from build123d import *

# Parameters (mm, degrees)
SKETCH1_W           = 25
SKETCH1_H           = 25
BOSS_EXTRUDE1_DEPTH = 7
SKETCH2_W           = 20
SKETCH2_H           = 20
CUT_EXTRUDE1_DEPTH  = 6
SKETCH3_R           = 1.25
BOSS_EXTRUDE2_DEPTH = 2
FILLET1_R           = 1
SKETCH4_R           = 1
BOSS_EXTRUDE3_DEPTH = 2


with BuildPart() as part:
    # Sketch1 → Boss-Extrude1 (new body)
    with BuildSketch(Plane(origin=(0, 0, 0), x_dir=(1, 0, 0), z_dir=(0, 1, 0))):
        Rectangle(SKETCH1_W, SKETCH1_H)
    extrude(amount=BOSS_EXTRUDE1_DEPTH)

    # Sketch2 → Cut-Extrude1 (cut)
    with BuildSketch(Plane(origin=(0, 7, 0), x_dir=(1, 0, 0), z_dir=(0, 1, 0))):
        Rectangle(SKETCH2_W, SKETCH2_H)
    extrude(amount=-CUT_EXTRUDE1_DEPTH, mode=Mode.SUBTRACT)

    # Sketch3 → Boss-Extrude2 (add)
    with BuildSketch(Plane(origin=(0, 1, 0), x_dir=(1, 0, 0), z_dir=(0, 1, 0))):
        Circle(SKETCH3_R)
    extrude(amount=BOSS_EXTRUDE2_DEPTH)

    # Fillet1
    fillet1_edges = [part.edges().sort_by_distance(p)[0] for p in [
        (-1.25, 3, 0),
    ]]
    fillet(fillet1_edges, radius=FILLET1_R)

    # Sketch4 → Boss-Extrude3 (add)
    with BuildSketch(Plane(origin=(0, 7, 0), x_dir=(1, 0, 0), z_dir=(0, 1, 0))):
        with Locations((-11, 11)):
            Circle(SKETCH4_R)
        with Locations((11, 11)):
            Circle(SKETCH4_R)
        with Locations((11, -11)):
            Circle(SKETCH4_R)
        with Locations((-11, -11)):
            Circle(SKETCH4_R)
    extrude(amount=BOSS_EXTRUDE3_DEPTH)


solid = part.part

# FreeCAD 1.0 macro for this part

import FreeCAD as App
import Part
import Sketcher

V = App.Vector
Q = App.Units.Quantity


def edges_at(feature, points):
    """Names of the edges that pass closest to the given points."""
    edges = feature.Shape.Edges
    near = lambda p: min(range(len(edges)), key=lambda i: edges[i].distToShape(Part.Vertex(*p))[0])
    return sorted({f"Edge{near(p) + 1}" for p in points})


def add_polygon(sketch, points):
    """Adds a closed chain of lines whose ends are joined by coincident constraints."""
    first, n = sketch.GeometryCount, len(points)
    for a, b in zip(points, points[1:] + points[:1]):
        sketch.addGeometry(Part.LineSegment(App.Vector(*a, 0), App.Vector(*b, 0)), False)
    for i in range(n):
        sketch.addConstraint(Sketcher.Constraint("Coincident", first + i, 2, first + (i + 1) % n, 1))

doc = App.newDocument("Part")
body = doc.addObject("PartDesign::Body", "Body")

sketch1 = doc.addObject("Sketcher::SketchObject", "Sketch")
body.addObject(sketch1)
sketch1.AttachmentSupport = (doc.XZ_Plane, [""])
sketch1.MapMode = "FlatFace"
add_polygon(sketch1, [(-12, -12), (-12, 12), (12, 12), (12, -12)])
sketch1.addConstraint([
    Sketcher.Constraint("Vertical", 0),
    Sketcher.Constraint("Horizontal", 1),
    Sketcher.Constraint("Vertical", 2),
    Sketcher.Constraint("Horizontal", 3),
    Sketcher.Constraint("Symmetric", 0, 2, 2, 2, -1, 1),
    Sketcher.Constraint("Equal", 3, 0),
    Sketcher.Constraint("DistanceX", 1, 1, 1, 2, Q("25 mm")),
])
pad1 = doc.addObject("PartDesign::Pad", "Pad")
body.addObject(pad1)
pad1.Profile = sketch1
pad1.Length = 7
pad1.Reversed = True

sketch2 = doc.addObject("Sketcher::SketchObject", "Sketch001")
body.addObject(sketch2)
sketch2.AttachmentSupport = (doc.XZ_Plane, [""])
sketch2.MapMode = "FlatFace"
sketch2.AttachmentOffset = App.Placement(V(0, 0, -7), App.Rotation())
add_polygon(sketch2, [(-10, -10), (-10, 10), (10, 10), (10, -10)])
sketch2.addConstraint([
    Sketcher.Constraint("Vertical", 0),
    Sketcher.Constraint("Horizontal", 1),
    Sketcher.Constraint("Vertical", 2),
    Sketcher.Constraint("Horizontal", 3),
    Sketcher.Constraint("Symmetric", 0, 2, 2, 2, -1, 1),
    Sketcher.Constraint("Equal", 3, 0),
    Sketcher.Constraint("DistanceX", 1, 1, 1, 2, Q("20 mm")),
])
pocket1 = doc.addObject("PartDesign::Pocket", "Pocket")
body.addObject(pocket1)
pocket1.Profile = sketch2
pocket1.Length = 6
pocket1.Reversed = True

sketch3 = doc.addObject("Sketcher::SketchObject", "Sketch002")
body.addObject(sketch3)
sketch3.AttachmentSupport = (doc.XZ_Plane, [""])
sketch3.MapMode = "FlatFace"
sketch3.AttachmentOffset = App.Placement(V(0, 0, -1), App.Rotation())
sketch3.addGeometry(Part.Circle(V(0, 0, 0), V(0, 0, 1), 1.2), False)
sketch3.addConstraint([
    Sketcher.Constraint("Coincident", 0, 3, -1, 1),
    Sketcher.Constraint("Diameter", 0, Q("2.5 mm")),
])
pad2 = doc.addObject("PartDesign::Pad", "Pad001")
body.addObject(pad2)
pad2.Profile = sketch3
pad2.Length = 2
pad2.Reversed = True
doc.recompute()

fillet = doc.addObject("PartDesign::Fillet", "Fillet")
body.addObject(fillet)
fillet.Base = (pad2, edges_at(pad2, [(-1.25, 3, 0)]))
fillet.Radius = 1

sketch4 = doc.addObject("Sketcher::SketchObject", "Sketch003")
body.addObject(sketch4)
sketch4.AttachmentSupport = (doc.XZ_Plane, [""])
sketch4.MapMode = "FlatFace"
sketch4.AttachmentOffset = App.Placement(V(0, 0, -7), App.Rotation())
sketch4.addGeometry([
    Part.Circle(V(-11, -11, 0), V(0, 0, 1), 1),
    Part.Circle(V(11, -11, 0), V(0, 0, 1), 1),
    Part.Circle(V(11, 11, 0), V(0, 0, 1), 1),
    Part.Circle(V(-11, 11, 0), V(0, 0, 1), 1),
], False)
sketch4.addConstraint([
    Sketcher.Constraint("Equal", 0, 1),
    Sketcher.Constraint("Equal", 1, 2),
    Sketcher.Constraint("Equal", 2, 3),
    Sketcher.Constraint("Symmetric", 0, 3, 2, 3, -1, 1),
    Sketcher.Constraint("Symmetric", 1, 3, 3, 3, -1, 1),
    Sketcher.Constraint("Symmetric", 0, 3, 1, 3, -2),
    Sketcher.Constraint("Diameter", 0, Q("2 mm")),
    Sketcher.Constraint("DistanceX", 0, 3, -1, 1, Q("11 mm")),
    Sketcher.Constraint("DistanceY", 0, 3, -1, 1, Q("11 mm")),
])
pad3 = doc.addObject("PartDesign::Pad", "Pad002")
body.addObject(pad3)
pad3.Profile = sketch4
pad3.Length = 2
pad3.Reversed = True

doc.recompute()
